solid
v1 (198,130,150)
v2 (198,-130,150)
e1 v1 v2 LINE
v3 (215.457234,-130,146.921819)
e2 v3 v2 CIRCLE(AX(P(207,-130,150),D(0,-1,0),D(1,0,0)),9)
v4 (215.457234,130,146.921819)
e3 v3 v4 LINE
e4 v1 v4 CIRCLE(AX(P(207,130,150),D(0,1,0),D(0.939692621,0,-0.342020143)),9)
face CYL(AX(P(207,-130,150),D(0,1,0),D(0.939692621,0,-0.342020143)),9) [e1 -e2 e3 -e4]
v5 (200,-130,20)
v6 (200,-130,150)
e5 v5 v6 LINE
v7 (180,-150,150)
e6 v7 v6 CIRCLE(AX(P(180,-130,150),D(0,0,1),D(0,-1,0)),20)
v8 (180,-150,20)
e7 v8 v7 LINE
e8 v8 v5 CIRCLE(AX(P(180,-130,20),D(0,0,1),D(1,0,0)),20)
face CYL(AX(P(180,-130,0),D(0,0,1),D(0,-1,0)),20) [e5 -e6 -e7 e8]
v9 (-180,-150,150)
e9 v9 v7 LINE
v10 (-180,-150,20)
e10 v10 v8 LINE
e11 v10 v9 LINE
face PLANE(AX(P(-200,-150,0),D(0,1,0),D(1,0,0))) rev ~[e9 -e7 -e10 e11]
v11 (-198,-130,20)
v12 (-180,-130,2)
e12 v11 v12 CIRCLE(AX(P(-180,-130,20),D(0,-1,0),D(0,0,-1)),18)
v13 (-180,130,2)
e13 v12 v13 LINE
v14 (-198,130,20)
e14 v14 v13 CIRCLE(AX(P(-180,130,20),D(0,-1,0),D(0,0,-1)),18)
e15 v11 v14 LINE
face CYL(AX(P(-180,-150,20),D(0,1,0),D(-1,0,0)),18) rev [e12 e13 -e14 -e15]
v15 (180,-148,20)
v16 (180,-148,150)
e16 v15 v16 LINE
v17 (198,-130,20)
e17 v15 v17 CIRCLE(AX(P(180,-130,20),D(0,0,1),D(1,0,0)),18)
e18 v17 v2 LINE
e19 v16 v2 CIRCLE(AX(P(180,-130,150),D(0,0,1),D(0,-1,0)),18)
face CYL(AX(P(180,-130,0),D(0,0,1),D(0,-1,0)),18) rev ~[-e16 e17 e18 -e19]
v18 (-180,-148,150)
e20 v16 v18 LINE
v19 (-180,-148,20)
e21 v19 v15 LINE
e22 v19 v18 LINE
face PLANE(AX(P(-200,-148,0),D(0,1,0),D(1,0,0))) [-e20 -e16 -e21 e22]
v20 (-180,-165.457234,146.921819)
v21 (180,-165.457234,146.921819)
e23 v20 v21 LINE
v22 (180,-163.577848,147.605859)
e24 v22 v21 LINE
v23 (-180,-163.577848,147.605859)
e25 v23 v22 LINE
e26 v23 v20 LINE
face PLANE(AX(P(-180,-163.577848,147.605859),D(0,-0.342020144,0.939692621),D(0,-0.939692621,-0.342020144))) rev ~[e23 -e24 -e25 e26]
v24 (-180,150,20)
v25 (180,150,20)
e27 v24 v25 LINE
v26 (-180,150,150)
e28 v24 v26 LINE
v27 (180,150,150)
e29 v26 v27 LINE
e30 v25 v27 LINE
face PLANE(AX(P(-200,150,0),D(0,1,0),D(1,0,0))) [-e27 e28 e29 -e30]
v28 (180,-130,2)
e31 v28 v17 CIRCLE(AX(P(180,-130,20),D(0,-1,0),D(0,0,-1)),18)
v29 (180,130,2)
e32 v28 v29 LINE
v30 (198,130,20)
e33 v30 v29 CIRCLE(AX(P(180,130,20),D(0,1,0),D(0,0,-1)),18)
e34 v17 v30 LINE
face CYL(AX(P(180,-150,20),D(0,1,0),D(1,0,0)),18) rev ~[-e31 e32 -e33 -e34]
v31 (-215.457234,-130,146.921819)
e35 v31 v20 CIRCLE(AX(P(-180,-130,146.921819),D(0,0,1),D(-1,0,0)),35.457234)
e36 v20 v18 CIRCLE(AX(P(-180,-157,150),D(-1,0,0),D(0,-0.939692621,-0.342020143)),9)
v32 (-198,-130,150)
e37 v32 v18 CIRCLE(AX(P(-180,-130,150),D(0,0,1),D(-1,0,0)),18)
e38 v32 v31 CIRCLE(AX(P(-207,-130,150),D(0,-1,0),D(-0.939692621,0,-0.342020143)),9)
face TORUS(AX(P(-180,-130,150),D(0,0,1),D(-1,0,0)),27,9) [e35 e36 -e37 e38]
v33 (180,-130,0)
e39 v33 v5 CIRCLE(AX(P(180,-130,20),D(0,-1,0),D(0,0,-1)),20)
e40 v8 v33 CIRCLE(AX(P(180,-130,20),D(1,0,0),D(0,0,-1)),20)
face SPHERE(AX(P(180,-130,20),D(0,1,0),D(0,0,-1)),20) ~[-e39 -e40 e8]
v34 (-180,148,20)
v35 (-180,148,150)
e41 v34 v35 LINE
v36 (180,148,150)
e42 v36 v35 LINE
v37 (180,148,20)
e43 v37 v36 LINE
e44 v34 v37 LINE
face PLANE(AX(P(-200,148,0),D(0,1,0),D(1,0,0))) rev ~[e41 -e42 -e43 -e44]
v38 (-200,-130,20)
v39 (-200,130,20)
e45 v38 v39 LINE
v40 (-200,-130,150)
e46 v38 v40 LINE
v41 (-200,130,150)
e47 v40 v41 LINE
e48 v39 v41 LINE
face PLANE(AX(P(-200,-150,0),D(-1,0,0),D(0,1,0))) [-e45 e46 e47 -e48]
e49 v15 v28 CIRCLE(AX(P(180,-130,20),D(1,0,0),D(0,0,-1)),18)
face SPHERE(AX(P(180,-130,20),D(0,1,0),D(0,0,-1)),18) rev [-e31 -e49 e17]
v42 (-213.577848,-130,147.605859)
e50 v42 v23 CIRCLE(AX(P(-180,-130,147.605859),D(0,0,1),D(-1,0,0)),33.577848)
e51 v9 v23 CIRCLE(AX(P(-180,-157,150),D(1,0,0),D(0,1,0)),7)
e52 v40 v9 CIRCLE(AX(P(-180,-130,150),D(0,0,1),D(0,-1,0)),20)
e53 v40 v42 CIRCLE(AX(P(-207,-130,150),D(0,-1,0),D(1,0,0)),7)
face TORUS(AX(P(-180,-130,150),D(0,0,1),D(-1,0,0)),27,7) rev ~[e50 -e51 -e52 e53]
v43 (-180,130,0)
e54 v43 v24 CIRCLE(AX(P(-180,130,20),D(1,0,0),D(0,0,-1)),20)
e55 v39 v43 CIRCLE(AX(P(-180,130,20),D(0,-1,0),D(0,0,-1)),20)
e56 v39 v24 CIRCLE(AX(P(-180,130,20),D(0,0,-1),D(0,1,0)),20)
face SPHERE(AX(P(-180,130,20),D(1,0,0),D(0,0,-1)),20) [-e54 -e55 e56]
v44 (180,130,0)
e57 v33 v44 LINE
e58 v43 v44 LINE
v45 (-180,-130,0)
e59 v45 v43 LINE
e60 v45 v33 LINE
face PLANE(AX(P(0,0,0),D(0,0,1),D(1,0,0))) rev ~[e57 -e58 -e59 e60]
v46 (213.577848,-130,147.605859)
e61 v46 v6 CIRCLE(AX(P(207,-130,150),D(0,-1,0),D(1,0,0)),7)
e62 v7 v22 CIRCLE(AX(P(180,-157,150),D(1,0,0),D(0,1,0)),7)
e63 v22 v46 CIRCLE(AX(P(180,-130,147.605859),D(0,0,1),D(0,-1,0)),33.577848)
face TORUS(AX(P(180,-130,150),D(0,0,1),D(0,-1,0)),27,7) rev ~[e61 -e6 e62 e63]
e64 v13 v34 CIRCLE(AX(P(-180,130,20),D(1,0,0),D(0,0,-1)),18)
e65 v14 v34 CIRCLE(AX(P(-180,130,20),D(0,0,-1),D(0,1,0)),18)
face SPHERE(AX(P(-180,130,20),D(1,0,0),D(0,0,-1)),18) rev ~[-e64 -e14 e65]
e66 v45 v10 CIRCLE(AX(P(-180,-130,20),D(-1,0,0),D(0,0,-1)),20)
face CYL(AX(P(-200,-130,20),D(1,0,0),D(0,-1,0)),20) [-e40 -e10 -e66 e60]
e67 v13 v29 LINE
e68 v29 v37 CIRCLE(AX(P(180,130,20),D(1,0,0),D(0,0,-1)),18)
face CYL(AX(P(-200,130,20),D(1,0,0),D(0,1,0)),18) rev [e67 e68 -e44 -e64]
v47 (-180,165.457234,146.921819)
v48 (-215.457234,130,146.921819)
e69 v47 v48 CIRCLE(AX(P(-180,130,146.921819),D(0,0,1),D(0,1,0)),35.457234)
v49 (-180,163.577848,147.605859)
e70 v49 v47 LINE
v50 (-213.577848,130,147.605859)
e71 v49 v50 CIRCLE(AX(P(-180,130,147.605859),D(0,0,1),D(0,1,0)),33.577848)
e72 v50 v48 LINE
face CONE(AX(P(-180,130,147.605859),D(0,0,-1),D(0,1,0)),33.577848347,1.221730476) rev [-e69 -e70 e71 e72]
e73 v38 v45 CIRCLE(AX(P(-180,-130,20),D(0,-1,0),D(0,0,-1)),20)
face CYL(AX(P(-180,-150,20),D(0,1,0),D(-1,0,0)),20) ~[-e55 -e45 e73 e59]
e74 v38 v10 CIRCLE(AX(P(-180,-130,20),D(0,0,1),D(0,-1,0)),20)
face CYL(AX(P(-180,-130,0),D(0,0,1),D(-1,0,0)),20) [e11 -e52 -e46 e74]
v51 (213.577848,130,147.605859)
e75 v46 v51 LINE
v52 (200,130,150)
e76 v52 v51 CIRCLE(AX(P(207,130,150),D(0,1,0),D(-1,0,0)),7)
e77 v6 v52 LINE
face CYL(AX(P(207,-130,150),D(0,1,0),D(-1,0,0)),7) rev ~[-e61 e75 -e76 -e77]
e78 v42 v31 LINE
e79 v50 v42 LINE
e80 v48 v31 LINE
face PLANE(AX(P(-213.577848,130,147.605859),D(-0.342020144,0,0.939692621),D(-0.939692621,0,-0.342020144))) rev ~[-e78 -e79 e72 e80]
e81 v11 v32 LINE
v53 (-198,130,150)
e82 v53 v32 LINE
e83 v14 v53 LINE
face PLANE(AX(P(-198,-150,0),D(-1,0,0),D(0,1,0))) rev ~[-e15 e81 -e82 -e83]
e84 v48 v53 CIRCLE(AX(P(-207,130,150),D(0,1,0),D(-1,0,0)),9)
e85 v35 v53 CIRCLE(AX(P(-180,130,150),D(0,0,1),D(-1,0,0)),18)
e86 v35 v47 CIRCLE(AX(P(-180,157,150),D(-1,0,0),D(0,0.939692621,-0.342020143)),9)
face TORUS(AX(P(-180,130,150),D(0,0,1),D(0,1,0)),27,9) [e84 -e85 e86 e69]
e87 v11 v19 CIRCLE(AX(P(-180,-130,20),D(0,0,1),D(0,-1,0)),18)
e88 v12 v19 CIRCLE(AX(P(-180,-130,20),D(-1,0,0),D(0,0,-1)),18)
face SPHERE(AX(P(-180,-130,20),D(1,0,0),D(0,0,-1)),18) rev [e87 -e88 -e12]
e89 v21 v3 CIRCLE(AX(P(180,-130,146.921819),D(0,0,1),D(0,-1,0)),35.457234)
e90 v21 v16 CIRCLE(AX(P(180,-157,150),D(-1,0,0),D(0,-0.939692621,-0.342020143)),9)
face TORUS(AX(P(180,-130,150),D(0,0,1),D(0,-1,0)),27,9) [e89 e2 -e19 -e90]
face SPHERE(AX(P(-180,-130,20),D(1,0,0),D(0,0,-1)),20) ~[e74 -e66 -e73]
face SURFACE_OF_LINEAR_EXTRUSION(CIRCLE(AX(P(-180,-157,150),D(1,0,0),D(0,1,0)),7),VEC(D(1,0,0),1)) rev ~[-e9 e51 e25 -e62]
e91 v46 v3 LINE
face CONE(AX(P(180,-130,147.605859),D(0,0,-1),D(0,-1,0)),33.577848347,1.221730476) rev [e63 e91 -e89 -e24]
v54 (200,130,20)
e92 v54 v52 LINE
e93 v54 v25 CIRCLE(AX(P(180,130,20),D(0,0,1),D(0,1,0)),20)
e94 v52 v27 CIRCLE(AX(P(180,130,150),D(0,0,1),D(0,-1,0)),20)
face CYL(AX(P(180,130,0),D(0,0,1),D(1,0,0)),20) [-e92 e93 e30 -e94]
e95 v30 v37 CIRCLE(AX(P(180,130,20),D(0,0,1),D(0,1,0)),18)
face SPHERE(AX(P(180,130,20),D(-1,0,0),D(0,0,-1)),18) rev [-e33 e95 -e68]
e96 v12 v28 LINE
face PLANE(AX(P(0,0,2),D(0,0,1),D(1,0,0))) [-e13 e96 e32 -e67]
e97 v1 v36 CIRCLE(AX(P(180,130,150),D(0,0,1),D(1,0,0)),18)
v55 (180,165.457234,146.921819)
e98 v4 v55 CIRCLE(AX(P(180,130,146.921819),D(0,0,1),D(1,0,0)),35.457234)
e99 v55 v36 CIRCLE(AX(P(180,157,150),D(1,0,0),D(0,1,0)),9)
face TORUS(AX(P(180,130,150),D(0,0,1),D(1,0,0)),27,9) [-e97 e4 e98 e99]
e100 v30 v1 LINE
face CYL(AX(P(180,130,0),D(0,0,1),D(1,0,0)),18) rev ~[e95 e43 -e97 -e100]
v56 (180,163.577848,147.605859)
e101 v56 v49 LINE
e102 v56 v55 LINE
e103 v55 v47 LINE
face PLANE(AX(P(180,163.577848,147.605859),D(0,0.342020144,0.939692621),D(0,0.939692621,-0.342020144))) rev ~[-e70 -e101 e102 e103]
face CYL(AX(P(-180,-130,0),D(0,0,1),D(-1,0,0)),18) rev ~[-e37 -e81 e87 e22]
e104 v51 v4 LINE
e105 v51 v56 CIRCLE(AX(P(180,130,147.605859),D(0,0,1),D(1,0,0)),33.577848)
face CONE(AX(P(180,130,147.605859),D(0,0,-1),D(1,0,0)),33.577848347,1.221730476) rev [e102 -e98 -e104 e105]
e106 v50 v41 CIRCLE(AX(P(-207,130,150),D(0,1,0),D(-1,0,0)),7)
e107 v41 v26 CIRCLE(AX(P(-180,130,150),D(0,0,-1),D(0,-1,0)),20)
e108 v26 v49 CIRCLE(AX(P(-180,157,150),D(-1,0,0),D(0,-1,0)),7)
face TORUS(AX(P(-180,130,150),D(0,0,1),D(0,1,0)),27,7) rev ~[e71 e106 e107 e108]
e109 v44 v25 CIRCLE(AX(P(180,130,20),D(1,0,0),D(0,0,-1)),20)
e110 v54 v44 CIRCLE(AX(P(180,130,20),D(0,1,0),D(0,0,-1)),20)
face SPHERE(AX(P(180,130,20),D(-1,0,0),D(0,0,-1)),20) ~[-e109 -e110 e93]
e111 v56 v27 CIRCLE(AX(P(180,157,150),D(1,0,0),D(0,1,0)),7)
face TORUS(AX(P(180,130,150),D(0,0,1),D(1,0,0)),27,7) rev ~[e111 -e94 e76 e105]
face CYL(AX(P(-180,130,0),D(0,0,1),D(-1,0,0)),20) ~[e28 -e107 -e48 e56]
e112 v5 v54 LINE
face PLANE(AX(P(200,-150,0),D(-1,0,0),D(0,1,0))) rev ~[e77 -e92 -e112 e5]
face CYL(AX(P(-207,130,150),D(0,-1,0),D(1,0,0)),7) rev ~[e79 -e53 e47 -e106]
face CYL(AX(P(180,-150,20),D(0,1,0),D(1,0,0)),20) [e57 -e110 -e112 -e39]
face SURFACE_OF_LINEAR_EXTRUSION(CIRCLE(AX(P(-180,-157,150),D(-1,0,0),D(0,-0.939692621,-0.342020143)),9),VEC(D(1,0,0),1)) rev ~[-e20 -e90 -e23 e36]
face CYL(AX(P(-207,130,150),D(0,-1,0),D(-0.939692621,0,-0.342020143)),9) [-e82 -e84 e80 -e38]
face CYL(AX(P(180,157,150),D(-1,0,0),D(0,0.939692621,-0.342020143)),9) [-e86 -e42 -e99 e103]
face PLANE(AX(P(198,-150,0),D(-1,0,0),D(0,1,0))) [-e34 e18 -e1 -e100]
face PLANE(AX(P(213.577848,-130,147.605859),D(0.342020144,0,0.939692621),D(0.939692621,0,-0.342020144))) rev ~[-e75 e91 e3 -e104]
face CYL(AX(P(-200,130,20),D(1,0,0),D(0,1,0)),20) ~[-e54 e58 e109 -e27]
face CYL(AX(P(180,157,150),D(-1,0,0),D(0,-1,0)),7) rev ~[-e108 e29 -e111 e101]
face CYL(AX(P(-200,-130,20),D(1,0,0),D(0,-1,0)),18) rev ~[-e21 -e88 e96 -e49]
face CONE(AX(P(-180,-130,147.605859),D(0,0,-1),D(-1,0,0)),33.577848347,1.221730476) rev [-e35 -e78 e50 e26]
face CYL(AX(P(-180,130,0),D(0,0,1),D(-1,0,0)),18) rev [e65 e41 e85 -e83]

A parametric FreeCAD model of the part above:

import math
import FreeCAD as App
import Part
import Sketcher
Q = App.Units.Quantity


def edges_at(feature, points):
    """Names of the edges that pass closest to the given points."""
    edges = feature.Shape.Edges
    near = lambda p: min(range(len(edges)), key=lambda i: edges[i].distToShape(Part.Vertex(*p))[0])
    return sorted({f"Edge{near(p) + 1}" for p in points})


def faces_at(feature, points):
    """Names of the faces that lie closest to the given points."""
    faces = feature.Shape.Faces
    near = lambda p: min(range(len(faces)), key=lambda i: faces[i].distToShape(Part.Vertex(*p))[0])
    return sorted({f"Face{near(p) + 1}" for p in points})

doc = App.newDocument("Part")
params = doc.addObject("Spreadsheet::Sheet", "Params")
for row, (alias, value) in enumerate([
    ("sketch1_width", "400 mm"),
    ("sketch1_height", "300 mm"),
    ("pad1_length", "150 mm"),
    ("fillet_radius", "20 mm"),
    ("thickness_wall", "2 mm"),
    ("sketch2_radius", "7 mm"),
    ("sketch2_radius2", "9 mm"),
    ("sketch3_radius", "18 mm"),
    ("sketch3_width", "360 mm"),
    ("sketch3_height", "260 mm"),
], start=1):
    params.set(f"A{row}", alias)
    params.set(f"B{row}", "=" + value)
    params.setAlias(f"B{row}", alias)

body = doc.addObject("PartDesign::Body", "Body")

# Sketch on XY plane
sketch1 = doc.addObject("Sketcher::SketchObject", "Sketch")
body.addObject(sketch1)
sketch1.AttachmentSupport = (doc.XY_Plane, [""])
sketch1.MapMode = "FlatFace"
sketch1.addGeometry(Part.LineSegment(App.Vector(-200, 150, 0), App.Vector(-200, -150, 0)), False)
sketch1.addGeometry(Part.LineSegment(App.Vector(-200, -150, 0), App.Vector(200, -150, 0)), False)
sketch1.addGeometry(Part.LineSegment(App.Vector(200, -150, 0), App.Vector(200, 150, 0)), False)
sketch1.addGeometry(Part.LineSegment(App.Vector(200, 150, 0), App.Vector(-200, 150, 0)), False)
sketch1.addConstraint(Sketcher.Constraint("Coincident", 0, 2, 1, 1))
sketch1.addConstraint(Sketcher.Constraint("Coincident", 1, 2, 2, 1))
sketch1.addConstraint(Sketcher.Constraint("Coincident", 2, 2, 3, 1))
sketch1.addConstraint(Sketcher.Constraint("Coincident", 3, 2, 0, 1))
sketch1.addConstraint(Sketcher.Constraint("Vertical", 0))
sketch1.addConstraint(Sketcher.Constraint("Horizontal", 1))
sketch1.addConstraint(Sketcher.Constraint("Vertical", 2))
sketch1.addConstraint(Sketcher.Constraint("Horizontal", 3))
sketch1.addConstraint(Sketcher.Constraint("Symmetric", 0, 2, 2, 2, -1, 1))
sketch1.addConstraint(Sketcher.Constraint("DistanceX", 1, 1, 1, 2, Q("400 mm")))
sketch1.addConstraint(Sketcher.Constraint("DistanceY", 0, 2, 0, 1, Q("300 mm")))
sketch1.setExpression("Constraints[9]", "Params.sketch1_width")
sketch1.setExpression("Constraints[10]", "Params.sketch1_height")
pad1 = doc.addObject("PartDesign::Pad", "Pad")
body.addObject(pad1)
pad1.Profile = sketch1
pad1.setExpression("Length", "Params.pad1_length")
doc.recompute()

fillet = doc.addObject("PartDesign::Fillet", "Fillet")
body.addObject(fillet)
fillet.Base = (pad1, edges_at(pad1, [
    (0, 150, 0),
    (200, 0, 0),
    (0, -150, 0),
    (-200, 0, 0),
    (-200, 150, 75),
    (200, 150, 75),
    (200, -150, 75),
    (-200, -150, 75),
]))
fillet.setExpression("Radius", "Params.fillet_radius")
doc.recompute()

thickness = doc.addObject("PartDesign::Thickness", "Thickness")
body.addObject(thickness)
thickness.Base = (fillet, faces_at(fillet, [(0, 0, 150)]))
thickness.setExpression("Value", "Params.thickness_wall")
thickness.Reversed = True
thickness.Join = "Intersection"

# Sketch on XZ plane
sketch2 = doc.addObject("Sketcher::SketchObject", "Sketch001")
body.addObject(sketch2)
sketch2.AttachmentSupport = (doc.XZ_Plane, [""])
sketch2.MapMode = "FlatFace"
sketch2.addGeometry(Part.LineSegment(App.Vector(-198, 150, 0), App.Vector(-200, 150, 0)), False)
sketch2.addGeometry(Part.ArcOfCircle(Part.Circle(App.Vector(-207, 150, 0), App.Vector(0, 0, 1), 7), math.radians(0), math.radians(200)), False)
sketch2.addGeometry(Part.LineSegment(App.Vector(-213.6, 147.6, 0), App.Vector(-215.5, 146.9, 0)), False)
sketch2.addGeometry(Part.ArcOfCircle(Part.Circle(App.Vector(-207, 150, 0), App.Vector(0, 0, 1), 9), math.radians(0), math.radians(200)), False)
sketch2.addConstraint(Sketcher.Constraint("Coincident", 0, 2, 1, 1))
sketch2.addConstraint(Sketcher.Constraint("Coincident", 1, 2, 2, 1))
sketch2.addConstraint(Sketcher.Constraint("Coincident", 2, 2, 3, 2))
sketch2.addConstraint(Sketcher.Constraint("Coincident", 3, 1, 0, 1))
sketch2.addConstraint(Sketcher.Constraint("Horizontal", 0))
sketch2.addConstraint(Sketcher.Constraint("Coincident", 3, 3, 1, 3))
sketch2.addConstraint(Sketcher.Constraint("Horizontal", 3, 3, 0, 2))
sketch2.addConstraint(Sketcher.Constraint("Radius", 1, Q("7 mm")))
sketch2.addConstraint(Sketcher.Constraint("Radius", 3, Q("9 mm")))
sketch2.addConstraint(Sketcher.Constraint("Angle", 2, Q("-160 deg")))
sketch2.addConstraint(Sketcher.Constraint("DistanceX", 1, 3, -1, 1, Q("207 mm")))
sketch2.addConstraint(Sketcher.Constraint("DistanceY", -1, 1, 1, 3, Q("150 mm")))
sketch2.addConstraint(Sketcher.Constraint("DistanceX", 1, 2, -1, 1, Q("213.577848 mm")))
sketch2.setExpression("Constraints[7]", "Params.sketch2_radius")
sketch2.setExpression("Constraints[8]", "Params.sketch2_radius2")

# Sketch on XY plane
sketch3 = doc.addObject("Sketcher::SketchObject", "Sketch002")
body.addObject(sketch3)
sketch3.AttachmentSupport = (doc.XY_Plane, [""])
sketch3.MapMode = "FlatFace"
sketch3.AttachmentOffset = App.Placement(App.Vector(0, 0, 150), App.Rotation())
sketch3.addGeometry(Part.LineSegment(App.Vector(-180, -148, 0), App.Vector(180, -148, 0)), False)
sketch3.addGeometry(Part.ArcOfCircle(Part.Circle(App.Vector(180, -130, 0), App.Vector(0, 0, 1), 18), math.radians(-90), math.radians(0)), False)
sketch3.addGeometry(Part.LineSegment(App.Vector(198, -130, 0), App.Vector(198, 130, 0)), False)
sketch3.addGeometry(Part.ArcOfCircle(Part.Circle(App.Vector(180, 130, 0), App.Vector(0, 0, 1), 18), math.radians(0), math.radians(90)), False)
sketch3.addGeometry(Part.LineSegment(App.Vector(180, 148, 0), App.Vector(-180, 148, 0)), False)
sketch3.addGeometry(Part.ArcOfCircle(Part.Circle(App.Vector(-180, 130, 0), App.Vector(0, 0, 1), 18), math.radians(90), math.radians(180)), False)
sketch3.addGeometry(Part.LineSegment(App.Vector(-198, 130, 0), App.Vector(-198, -130, 0)), False)
sketch3.addGeometry(Part.ArcOfCircle(Part.Circle(App.Vector(-180, -130, 0), App.Vector(0, 0, 1), 18), math.radians(-180), math.radians(-90)), False)
sketch3.addConstraint(Sketcher.Constraint("Tangent", 0, 2, 1, 1))
sketch3.addConstraint(Sketcher.Constraint("Tangent", 1, 2, 2, 1))
sketch3.addConstraint(Sketcher.Constraint("Tangent", 2, 2, 3, 1))
sketch3.addConstraint(Sketcher.Constraint("Tangent", 3, 2, 4, 1))
sketch3.addConstraint(Sketcher.Constraint("Tangent", 4, 2, 5, 1))
sketch3.addConstraint(Sketcher.Constraint("Tangent", 5, 2, 6, 1))
sketch3.addConstraint(Sketcher.Constraint("Tangent", 6, 2, 7, 1))
sketch3.addConstraint(Sketcher.Constraint("Tangent", 7, 2, 0, 1))
sketch3.addConstraint(Sketcher.Constraint("Horizontal", 0))
sketch3.addConstraint(Sketcher.Constraint("Vertical", 2))
sketch3.addConstraint(Sketcher.Constraint("Horizontal", 4))
sketch3.addConstraint(Sketcher.Constraint("Vertical", 6))
sketch3.addConstraint(Sketcher.Constraint("Equal", 1, 3))
sketch3.addConstraint(Sketcher.Constraint("Equal", 3, 5))
sketch3.addConstraint(Sketcher.Constraint("Equal", 5, 7))
sketch3.addConstraint(Sketcher.Constraint("Symmetric", 1, 3, 5, 3, -1, 1))
sketch3.addConstraint(Sketcher.Constraint("Radius", 1, Q("18 mm")))
sketch3.addConstraint(Sketcher.Constraint("DistanceX", 0, 1, 0, 2, Q("360 mm")))
sketch3.addConstraint(Sketcher.Constraint("DistanceY", 2, 1, 2, 2, Q("260 mm")))
sketch3.setExpression("Constraints[16]", "Params.sketch3_radius")
sketch3.setExpression("Constraints[17]", "Params.sketch3_width")
sketch3.setExpression("Constraints[18]", "Params.sketch3_height")
doc.recompute()

additivepipe = doc.addObject("PartDesign::AdditivePipe", "AdditivePipe")
body.addObject(additivepipe)
additivepipe.Profile = sketch2
additivepipe.Spine = (sketch3, ["Edge1", "Edge2", "Edge3", "Edge4", "Edge5", "Edge6", "Edge7", "Edge8"])

doc.recompute()
